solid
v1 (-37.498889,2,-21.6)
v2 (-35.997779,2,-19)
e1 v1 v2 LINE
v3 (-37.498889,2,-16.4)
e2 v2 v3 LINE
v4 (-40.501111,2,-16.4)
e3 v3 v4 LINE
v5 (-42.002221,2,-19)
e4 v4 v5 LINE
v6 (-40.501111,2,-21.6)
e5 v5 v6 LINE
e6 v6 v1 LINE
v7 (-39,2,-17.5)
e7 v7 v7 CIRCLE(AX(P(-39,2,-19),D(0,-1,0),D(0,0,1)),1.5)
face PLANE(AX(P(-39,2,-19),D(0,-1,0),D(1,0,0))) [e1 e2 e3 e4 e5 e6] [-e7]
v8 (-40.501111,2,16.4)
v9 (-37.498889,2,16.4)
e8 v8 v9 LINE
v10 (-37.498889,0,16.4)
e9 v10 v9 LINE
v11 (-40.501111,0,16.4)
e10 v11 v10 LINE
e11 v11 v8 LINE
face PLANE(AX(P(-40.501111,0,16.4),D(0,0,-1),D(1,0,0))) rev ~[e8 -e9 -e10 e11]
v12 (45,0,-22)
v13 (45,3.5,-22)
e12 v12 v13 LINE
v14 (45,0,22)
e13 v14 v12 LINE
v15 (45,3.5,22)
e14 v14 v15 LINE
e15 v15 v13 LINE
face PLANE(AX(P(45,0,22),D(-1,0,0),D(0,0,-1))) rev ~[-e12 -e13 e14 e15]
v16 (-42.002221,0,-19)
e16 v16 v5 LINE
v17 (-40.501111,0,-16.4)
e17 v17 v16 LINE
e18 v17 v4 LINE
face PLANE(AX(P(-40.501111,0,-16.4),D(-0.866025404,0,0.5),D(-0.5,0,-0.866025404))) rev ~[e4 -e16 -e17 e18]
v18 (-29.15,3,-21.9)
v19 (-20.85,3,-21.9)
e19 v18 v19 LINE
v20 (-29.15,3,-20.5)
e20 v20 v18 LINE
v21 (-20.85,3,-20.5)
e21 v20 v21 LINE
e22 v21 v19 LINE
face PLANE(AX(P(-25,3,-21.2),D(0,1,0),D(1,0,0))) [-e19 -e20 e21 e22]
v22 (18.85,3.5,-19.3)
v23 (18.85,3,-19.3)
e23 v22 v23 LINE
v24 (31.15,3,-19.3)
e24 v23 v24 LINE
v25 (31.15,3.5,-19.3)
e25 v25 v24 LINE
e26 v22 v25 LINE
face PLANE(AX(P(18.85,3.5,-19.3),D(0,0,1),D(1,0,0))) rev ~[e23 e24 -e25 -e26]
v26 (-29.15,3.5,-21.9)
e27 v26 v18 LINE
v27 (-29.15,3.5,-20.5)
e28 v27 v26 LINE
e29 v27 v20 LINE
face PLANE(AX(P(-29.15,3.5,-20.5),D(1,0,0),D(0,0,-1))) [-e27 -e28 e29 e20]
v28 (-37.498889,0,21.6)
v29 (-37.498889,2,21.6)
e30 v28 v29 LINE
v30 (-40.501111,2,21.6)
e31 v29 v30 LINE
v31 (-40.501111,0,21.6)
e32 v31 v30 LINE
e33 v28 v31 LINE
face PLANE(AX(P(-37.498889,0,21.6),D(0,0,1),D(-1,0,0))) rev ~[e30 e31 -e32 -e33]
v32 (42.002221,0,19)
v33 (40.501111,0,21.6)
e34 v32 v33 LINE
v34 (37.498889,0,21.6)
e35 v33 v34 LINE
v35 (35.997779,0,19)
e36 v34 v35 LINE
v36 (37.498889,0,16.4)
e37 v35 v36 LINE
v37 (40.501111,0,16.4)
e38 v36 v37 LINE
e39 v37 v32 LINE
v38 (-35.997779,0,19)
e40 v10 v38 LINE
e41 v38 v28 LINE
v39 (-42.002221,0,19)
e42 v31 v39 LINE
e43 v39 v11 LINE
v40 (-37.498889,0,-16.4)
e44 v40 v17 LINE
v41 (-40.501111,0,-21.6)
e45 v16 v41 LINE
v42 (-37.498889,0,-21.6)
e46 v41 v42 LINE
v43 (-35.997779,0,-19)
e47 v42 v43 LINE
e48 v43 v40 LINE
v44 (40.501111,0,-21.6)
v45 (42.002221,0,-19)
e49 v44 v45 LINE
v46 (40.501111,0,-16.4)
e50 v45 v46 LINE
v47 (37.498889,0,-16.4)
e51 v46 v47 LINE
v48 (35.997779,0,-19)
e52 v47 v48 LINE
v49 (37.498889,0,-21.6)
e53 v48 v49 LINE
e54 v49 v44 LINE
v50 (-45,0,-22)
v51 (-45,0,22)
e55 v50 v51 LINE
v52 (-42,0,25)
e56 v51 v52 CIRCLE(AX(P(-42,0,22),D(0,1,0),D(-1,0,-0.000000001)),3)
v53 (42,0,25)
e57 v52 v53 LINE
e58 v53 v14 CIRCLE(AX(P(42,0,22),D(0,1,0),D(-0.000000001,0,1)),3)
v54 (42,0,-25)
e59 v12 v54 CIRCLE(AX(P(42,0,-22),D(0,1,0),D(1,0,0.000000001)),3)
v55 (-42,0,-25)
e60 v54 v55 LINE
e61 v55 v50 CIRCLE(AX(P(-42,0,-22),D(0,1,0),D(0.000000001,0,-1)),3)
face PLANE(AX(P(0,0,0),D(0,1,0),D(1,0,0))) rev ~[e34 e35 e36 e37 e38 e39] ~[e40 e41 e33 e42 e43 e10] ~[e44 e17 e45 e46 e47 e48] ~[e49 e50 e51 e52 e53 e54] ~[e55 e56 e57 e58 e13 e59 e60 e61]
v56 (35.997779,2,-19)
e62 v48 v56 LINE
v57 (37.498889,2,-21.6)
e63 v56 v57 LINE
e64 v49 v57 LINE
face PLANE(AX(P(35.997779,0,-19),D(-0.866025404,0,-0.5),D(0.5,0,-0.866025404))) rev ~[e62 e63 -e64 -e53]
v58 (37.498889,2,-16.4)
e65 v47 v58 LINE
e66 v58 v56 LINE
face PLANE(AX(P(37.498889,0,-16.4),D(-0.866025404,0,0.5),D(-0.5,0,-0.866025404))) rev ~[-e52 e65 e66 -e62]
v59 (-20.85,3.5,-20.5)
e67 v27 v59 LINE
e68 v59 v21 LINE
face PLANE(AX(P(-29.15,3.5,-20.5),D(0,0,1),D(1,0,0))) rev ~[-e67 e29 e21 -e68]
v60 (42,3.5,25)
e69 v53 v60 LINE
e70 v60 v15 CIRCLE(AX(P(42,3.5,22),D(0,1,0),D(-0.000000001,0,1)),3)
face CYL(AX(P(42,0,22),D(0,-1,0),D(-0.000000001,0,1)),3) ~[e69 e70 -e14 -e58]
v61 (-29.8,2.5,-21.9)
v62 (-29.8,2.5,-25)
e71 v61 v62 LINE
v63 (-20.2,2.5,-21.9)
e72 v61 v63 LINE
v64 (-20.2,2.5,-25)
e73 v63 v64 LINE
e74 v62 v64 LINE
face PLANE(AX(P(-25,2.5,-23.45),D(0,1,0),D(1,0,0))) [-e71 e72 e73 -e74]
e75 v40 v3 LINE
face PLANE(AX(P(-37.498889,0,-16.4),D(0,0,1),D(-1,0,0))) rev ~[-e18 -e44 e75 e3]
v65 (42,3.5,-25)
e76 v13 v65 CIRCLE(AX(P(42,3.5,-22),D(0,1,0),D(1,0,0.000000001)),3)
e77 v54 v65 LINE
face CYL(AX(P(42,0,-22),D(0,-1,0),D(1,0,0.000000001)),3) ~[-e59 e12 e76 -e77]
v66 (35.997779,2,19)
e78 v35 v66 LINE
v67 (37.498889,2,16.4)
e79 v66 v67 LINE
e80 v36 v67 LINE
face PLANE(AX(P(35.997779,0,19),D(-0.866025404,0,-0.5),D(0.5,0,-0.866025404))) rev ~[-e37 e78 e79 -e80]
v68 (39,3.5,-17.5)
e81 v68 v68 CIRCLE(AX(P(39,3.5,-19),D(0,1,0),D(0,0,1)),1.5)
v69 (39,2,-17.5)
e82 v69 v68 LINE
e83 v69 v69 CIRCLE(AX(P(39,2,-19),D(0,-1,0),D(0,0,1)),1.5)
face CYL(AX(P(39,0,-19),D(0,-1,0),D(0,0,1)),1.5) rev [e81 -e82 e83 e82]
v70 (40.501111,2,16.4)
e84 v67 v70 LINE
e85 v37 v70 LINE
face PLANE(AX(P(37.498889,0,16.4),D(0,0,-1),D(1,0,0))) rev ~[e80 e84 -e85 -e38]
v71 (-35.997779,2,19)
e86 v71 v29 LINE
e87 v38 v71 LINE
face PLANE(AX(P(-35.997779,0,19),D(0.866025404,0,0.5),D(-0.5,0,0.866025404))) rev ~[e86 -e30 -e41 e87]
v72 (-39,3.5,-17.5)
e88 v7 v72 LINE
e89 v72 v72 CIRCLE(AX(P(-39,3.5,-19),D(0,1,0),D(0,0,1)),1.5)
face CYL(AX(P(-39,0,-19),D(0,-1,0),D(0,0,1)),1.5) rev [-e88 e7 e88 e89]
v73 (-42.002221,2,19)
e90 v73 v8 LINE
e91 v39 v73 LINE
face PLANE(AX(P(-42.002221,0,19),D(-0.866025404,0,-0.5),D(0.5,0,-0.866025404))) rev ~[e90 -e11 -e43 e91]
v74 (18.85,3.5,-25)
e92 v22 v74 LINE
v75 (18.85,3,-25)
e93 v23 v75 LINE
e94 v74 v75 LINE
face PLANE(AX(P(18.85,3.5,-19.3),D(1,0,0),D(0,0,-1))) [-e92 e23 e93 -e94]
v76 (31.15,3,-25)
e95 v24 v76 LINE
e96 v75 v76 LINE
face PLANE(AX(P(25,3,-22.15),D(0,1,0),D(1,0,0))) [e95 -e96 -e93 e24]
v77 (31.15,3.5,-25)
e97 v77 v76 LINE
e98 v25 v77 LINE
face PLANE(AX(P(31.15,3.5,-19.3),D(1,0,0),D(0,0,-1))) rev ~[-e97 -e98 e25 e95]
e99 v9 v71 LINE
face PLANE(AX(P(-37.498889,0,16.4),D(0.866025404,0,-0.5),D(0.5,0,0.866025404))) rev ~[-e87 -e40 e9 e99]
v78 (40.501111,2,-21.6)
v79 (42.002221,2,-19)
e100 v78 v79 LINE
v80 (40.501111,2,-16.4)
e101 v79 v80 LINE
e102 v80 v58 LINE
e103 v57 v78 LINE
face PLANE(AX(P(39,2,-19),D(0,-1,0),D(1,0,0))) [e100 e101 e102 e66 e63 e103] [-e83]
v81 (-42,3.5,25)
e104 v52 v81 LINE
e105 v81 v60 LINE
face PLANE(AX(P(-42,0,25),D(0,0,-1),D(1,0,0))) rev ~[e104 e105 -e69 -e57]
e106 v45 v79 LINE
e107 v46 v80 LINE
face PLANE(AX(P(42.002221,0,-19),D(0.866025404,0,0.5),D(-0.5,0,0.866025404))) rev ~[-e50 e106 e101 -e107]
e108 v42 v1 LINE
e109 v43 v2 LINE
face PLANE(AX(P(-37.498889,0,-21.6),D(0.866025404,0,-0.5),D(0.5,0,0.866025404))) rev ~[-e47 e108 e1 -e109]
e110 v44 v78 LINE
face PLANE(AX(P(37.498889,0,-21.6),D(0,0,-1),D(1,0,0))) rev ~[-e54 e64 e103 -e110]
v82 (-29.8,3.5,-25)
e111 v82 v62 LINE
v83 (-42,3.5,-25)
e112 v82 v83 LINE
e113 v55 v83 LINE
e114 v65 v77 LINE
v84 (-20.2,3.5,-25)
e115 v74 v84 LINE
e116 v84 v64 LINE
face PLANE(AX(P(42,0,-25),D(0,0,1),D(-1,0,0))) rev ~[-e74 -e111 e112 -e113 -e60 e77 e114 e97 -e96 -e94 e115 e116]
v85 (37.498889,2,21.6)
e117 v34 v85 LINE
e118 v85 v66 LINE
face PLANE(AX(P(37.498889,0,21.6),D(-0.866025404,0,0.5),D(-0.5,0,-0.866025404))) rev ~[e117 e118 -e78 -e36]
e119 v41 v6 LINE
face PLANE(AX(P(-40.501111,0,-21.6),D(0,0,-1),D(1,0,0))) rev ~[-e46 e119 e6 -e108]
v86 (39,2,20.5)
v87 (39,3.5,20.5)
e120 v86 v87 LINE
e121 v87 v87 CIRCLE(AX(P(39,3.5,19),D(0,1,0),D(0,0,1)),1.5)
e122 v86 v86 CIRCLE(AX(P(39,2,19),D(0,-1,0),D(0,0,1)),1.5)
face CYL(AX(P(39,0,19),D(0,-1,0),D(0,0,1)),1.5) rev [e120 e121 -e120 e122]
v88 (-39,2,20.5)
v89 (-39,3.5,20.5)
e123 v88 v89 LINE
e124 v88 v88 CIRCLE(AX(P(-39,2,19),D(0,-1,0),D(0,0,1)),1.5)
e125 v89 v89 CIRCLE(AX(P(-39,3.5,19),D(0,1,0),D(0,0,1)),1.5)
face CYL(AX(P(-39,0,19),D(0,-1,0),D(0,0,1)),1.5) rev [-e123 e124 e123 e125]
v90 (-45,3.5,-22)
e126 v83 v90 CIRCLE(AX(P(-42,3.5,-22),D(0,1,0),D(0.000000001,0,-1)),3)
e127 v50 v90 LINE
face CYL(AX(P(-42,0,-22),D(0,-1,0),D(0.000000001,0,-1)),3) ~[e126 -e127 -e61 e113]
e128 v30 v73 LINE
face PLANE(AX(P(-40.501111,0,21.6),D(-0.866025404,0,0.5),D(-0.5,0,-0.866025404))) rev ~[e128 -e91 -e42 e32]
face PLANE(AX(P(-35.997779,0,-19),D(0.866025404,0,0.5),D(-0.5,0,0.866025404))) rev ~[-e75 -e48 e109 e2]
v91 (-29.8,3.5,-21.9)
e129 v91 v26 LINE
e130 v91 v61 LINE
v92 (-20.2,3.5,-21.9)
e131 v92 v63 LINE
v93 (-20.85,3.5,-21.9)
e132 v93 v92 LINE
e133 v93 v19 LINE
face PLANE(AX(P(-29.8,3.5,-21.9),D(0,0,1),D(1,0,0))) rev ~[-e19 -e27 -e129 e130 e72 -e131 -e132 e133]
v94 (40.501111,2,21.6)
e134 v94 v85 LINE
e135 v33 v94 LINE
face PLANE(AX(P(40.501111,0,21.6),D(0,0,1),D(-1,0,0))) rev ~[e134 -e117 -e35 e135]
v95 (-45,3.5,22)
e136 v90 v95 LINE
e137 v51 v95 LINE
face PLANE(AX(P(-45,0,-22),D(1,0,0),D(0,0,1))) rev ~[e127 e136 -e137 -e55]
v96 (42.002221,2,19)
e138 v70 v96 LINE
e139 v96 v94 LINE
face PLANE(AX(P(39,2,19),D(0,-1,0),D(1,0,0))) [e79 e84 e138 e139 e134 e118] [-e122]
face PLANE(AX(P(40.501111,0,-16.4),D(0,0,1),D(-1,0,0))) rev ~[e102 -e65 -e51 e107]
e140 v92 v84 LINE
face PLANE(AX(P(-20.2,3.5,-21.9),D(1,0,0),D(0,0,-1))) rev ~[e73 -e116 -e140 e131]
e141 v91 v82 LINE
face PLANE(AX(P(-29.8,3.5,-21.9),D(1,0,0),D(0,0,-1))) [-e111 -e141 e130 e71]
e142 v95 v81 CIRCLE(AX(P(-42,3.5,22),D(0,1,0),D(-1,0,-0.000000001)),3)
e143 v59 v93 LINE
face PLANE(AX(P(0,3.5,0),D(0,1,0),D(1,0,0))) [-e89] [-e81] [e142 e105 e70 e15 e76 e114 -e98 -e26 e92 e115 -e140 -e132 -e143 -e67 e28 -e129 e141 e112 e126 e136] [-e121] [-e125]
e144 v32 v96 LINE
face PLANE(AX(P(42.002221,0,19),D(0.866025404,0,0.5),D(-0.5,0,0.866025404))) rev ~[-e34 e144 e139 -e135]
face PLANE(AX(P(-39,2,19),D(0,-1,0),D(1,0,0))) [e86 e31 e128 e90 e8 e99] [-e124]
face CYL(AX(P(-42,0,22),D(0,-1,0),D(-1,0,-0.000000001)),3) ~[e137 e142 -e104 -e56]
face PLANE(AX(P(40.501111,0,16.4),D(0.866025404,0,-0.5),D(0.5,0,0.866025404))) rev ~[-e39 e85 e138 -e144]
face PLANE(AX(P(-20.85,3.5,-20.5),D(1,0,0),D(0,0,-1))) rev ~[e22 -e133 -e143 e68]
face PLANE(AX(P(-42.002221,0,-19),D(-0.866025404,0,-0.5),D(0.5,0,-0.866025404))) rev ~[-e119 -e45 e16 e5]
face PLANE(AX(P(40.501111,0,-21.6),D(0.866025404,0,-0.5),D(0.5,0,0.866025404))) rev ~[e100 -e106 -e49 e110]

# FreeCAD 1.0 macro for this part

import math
import FreeCAD as App
import Part
import Sketcher

V = App.Vector
Q = App.Units.Quantity


def add_polygon(sketch, points):
    """Adds a closed chain of lines whose ends are joined by coincident constraints."""
    first, n = sketch.GeometryCount, len(points)
    for a, b in zip(points, points[1:] + points[:1]):
        sketch.addGeometry(Part.LineSegment(App.Vector(*a, 0), App.Vector(*b, 0)), False)
    for i in range(n):
        sketch.addConstraint(Sketcher.Constraint("Coincident", first + i, 2, first + (i + 1) % n, 1))

doc = App.newDocument("Part")
body = doc.addObject("PartDesign::Body", "Body")

# Sketch on XZ plane
sketch1 = body.newObject("Sketcher::SketchObject", "Sketch")
sketch1.AttachmentSupport = (doc.getObject("XZ_Plane"), [""])
sketch1.MapMode = "FlatFace"
sketch1.addGeometry([
    Part.LineSegment(V(-42, 25, 0), V(42, 25, 0)),  # 0
    Part.ArcOfCircle(Part.Circle(V(42, 22, 0), V(0, 0, 1), 3), math.radians(0), math.radians(90)),  # 1
    Part.LineSegment(V(45, 22, 0), V(45, -22, 0)),  # 2
    Part.ArcOfCircle(Part.Circle(V(42, -22, 0), V(0, 0, 1), 3), math.radians(-90), math.radians(0)),  # 3
    Part.LineSegment(V(42, -25, 0), V(-42, -25, 0)),  # 4
    Part.ArcOfCircle(Part.Circle(V(-42, -22, 0), V(0, 0, 1), 3), math.radians(180), math.radians(270)),  # 5
    Part.LineSegment(V(-45, -22, 0), V(-45, 22, 0)),  # 6
    Part.ArcOfCircle(Part.Circle(V(-42, 22, 0), V(0, 0, 1), 3), math.radians(90), math.radians(180)),  # 7
    Part.Circle(V(-39, 19, 0), V(0, 0, 1), 1.5),  # 8
    Part.Circle(V(39, 19, 0), V(0, 0, 1), 1.5),  # 9
    Part.Circle(V(-39, -19, 0), V(0, 0, 1), 1.5),  # 10
    Part.Circle(V(39, -19, 0), V(0, 0, 1), 1.5),  # 11
], False)
sketch1.addConstraint([
    Sketcher.Constraint("Tangent", 0, 2, 1, 2),
    Sketcher.Constraint("Tangent", 1, 1, 2, 1),
    Sketcher.Constraint("Tangent", 2, 2, 3, 2),
    Sketcher.Constraint("Tangent", 3, 1, 4, 1),
    Sketcher.Constraint("Tangent", 4, 2, 5, 2),
    Sketcher.Constraint("Tangent", 5, 1, 6, 1),
    Sketcher.Constraint("Tangent", 6, 2, 7, 2),
    Sketcher.Constraint("Tangent", 7, 1, 0, 1),
    Sketcher.Constraint("Horizontal", 0),
    Sketcher.Constraint("Vertical", 2),
    Sketcher.Constraint("Horizontal", 4),
    Sketcher.Constraint("Vertical", 6),
    Sketcher.Constraint("Equal", 1, 3),
    Sketcher.Constraint("Equal", 3, 5),
    Sketcher.Constraint("Equal", 5, 7),
    Sketcher.Constraint("Equal", 8, 9),
    Sketcher.Constraint("Equal", 9, 10),
    Sketcher.Constraint("Equal", 10, 11),
    Sketcher.Constraint("Symmetric", 1, 3, 5, 3, -1, 1),
    Sketcher.Constraint("Symmetric", 9, 3, 10, 3, -1, 1),
    Sketcher.Constraint("Symmetric", 8, 3, 11, 3, -1, 1),
    Sketcher.Constraint("Symmetric", 8, 3, 9, 3, -2),
    Sketcher.Constraint("Diameter", 8, 3.0),
    Sketcher.Constraint("Radius", 1, 3.0),
    Sketcher.Constraint("DistanceX", 0, 1, 0, 2, 84.0),
    Sketcher.Constraint("DistanceY", 2, 2, 2, 1, 44.0),
    Sketcher.Constraint("DistanceX", 8, 3, -1, 1, 39.0),
    Sketcher.Constraint("DistanceY", -1, 1, 8, 3, 19.0),
])
pad1 = body.newObject("PartDesign::Pad", "Pad")
pad1.Profile = sketch1
pad1.Length = 3.5
pad1.Reversed = True

# Sketch on XZ plane
sketch2 = body.newObject("Sketcher::SketchObject", "Sketch001")
sketch2.AttachmentSupport = (doc.getObject("XZ_Plane"), [""])
sketch2.MapMode = "FlatFace"
sketch2.AttachmentOffset = App.Placement(V(0, 0, -3.5), App.Rotation())
add_polygon(sketch2, [(-29.1, -21.9), (-29.1, -20.5), (-20.9, -20.5), (-20.9, -21.9)])  # lines 0-3
add_polygon(sketch2, [(18.9, -25), (18.9, -19.3), (31.1, -19.3), (31.1, -25)])  # lines 4-7
sketch2.addConstraint([
    Sketcher.Constraint("Vertical", 0),
    Sketcher.Constraint("Horizontal", 1),
    Sketcher.Constraint("Vertical", 2),
    Sketcher.Constraint("Horizontal", 3),
    Sketcher.Constraint("Vertical", 4),
    Sketcher.Constraint("Horizontal", 5),
    Sketcher.Constraint("Vertical", 6),
    Sketcher.Constraint("Horizontal", 7),
    Sketcher.Constraint("DistanceX", 1, 1, 1, 2, 8.3),
    Sketcher.Constraint("DistanceX", 5, 1, 5, 2, 12.3),
    Sketcher.Constraint("DistanceY", 0, 1, 0, 2, 1.4),
    Sketcher.Constraint("DistanceY", 4, 1, 4, 2, 5.7),
    Sketcher.Constraint("DistanceY", 6, 2, -1, 1, 25.0),
    Sketcher.Constraint("DistanceX", 0, 2, 4, 2, 48.0),
    Sketcher.Constraint("DistanceY", 0, 2, -1, 1, 20.5),
    Sketcher.Constraint("DistanceX", 0, 2, -1, 1, 29.15),
])
pocket1 = body.newObject("PartDesign::Pocket", "Pocket")
pocket1.Profile = sketch2
pocket1.Length = 0.5
pocket1.Reversed = True

# Sketch on XZ plane
sketch3 = body.newObject("Sketcher::SketchObject", "Sketch002")
sketch3.AttachmentSupport = (doc.getObject("XZ_Plane"), [""])
sketch3.MapMode = "FlatFace"
sketch3.AttachmentOffset = App.Placement(V(0, 0, -3.5), App.Rotation())
add_polygon(sketch3, [(-29.8, -25), (-29.8, -21.9), (-20.2, -21.9), (-20.2, -25)])  # lines 0-3
sketch3.addConstraint([
    Sketcher.Constraint("Vertical", 0),
    Sketcher.Constraint("Horizontal", 1),
    Sketcher.Constraint("Vertical", 2),
    Sketcher.Constraint("Horizontal", 3),
    Sketcher.Constraint("DistanceX", 1, 1, 1, 2, 9.6),
    Sketcher.Constraint("DistanceY", 0, 1, 0, 2, 3.1),
    Sketcher.Constraint("DistanceY", 2, 2, -1, 1, 25.0),
    Sketcher.Constraint("DistanceX", 0, 2, -1, 1, 29.8),
])
pocket2 = body.newObject("PartDesign::Pocket", "Pocket001")
pocket2.Profile = sketch3
pocket2.Length = 1
pocket2.Reversed = True

# Sketch on XZ plane
sketch4 = body.newObject("Sketcher::SketchObject", "Sketch003")
sketch4.AttachmentSupport = (doc.getObject("XZ_Plane"), [""])
sketch4.MapMode = "FlatFace"
add_polygon(sketch4, [(-37.5, 21.6), (-40.5, 21.6), (-42, 19), (-40.5, 16.4), (-37.5, 16.4), (-36, 19)])  # lines 0-5
add_polygon(sketch4, [(-37.5, -16.4), (-40.5, -16.4), (-42, -19), (-40.5, -21.6), (-37.5, -21.6), (-36, -19)])  # lines 6-11
add_polygon(sketch4, [(40.5, -16.4), (37.5, -16.4), (36, -19), (37.5, -21.6), (40.5, -21.6), (42, -19)])  # lines 12-17
add_polygon(sketch4, [(37.5, 21.6), (36, 19), (37.5, 16.4), (40.5, 16.4), (42, 19), (40.5, 21.6)])  # lines 18-23
sketch4.addConstraint([
    Sketcher.Constraint("Horizontal", 0),
    Sketcher.Constraint("Horizontal", 3),
    Sketcher.Constraint("Horizontal", 6),
    Sketcher.Constraint("Horizontal", 9),
    Sketcher.Constraint("Horizontal", 12),
    Sketcher.Constraint("Horizontal", 15),
    Sketcher.Constraint("Horizontal", 20),
    Sketcher.Constraint("Horizontal", 23),
    Sketcher.Constraint("Symmetric", 3, 2, 12, 2, -1, 1),
    Sketcher.Constraint("Symmetric", 4, 2, 13, 2, -1, 1),
    Sketcher.Constraint("Symmetric", 5, 2, 14, 2, -1, 1),
    Sketcher.Constraint("Symmetric", 1, 2, 16, 2, -1, 1),
    Sketcher.Constraint("Symmetric", 10, 2, 18, 2, -1, 1),
    Sketcher.Constraint("Symmetric", 11, 2, 19, 2, -1, 1),
    Sketcher.Constraint("Symmetric", 7, 2, 21, 2, -1, 1),
    Sketcher.Constraint("Symmetric", 8, 2, 22, 2, -1, 1),
    Sketcher.Constraint("Symmetric", 11, 2, 12, 2, -2),
    Sketcher.Constraint("Symmetric", 10, 2, 13, 2, -2),
    Sketcher.Constraint("Symmetric", 9, 2, 14, 2, -2),
    Sketcher.Constraint("Symmetric", 7, 2, 16, 2, -2),
    Sketcher.Constraint("Parallel", 1, 4),
    Sketcher.Constraint("Parallel", 2, 5),
    Sketcher.Constraint("Parallel", 4, 7),
    Sketcher.Constraint("Parallel", 5, 8),
    Sketcher.Constraint("Parallel", 7, 10),
    Sketcher.Constraint("Parallel", 13, 16),
    Sketcher.Constraint("Parallel", 14, 17),
    Sketcher.Constraint("Parallel", 16, 18),
    Sketcher.Constraint("Parallel", 18, 21),
    Sketcher.Constraint("Horizontal", 1, 2, 4, 2),
    Sketcher.Constraint("Vertical", 0, 2, 2, 2),
    Sketcher.Constraint("Angle", 1, Q("-120 deg")),
    Sketcher.Constraint("DistanceY", -1, 1, 1, 2, 19.0),
    Sketcher.Constraint("DistanceX", 6, 2, 12, 2, 78.0),
    Sketcher.Constraint("DistanceY", -1, 1, 0, 2, 21.6),
    Sketcher.Constraint("DistanceX", 0, 2, 0, 1, 3.002221),
])
pocket3 = body.newObject("PartDesign::Pocket", "Pocket002")
pocket3.Profile = sketch4
pocket3.Length = 2

doc.recompute()
